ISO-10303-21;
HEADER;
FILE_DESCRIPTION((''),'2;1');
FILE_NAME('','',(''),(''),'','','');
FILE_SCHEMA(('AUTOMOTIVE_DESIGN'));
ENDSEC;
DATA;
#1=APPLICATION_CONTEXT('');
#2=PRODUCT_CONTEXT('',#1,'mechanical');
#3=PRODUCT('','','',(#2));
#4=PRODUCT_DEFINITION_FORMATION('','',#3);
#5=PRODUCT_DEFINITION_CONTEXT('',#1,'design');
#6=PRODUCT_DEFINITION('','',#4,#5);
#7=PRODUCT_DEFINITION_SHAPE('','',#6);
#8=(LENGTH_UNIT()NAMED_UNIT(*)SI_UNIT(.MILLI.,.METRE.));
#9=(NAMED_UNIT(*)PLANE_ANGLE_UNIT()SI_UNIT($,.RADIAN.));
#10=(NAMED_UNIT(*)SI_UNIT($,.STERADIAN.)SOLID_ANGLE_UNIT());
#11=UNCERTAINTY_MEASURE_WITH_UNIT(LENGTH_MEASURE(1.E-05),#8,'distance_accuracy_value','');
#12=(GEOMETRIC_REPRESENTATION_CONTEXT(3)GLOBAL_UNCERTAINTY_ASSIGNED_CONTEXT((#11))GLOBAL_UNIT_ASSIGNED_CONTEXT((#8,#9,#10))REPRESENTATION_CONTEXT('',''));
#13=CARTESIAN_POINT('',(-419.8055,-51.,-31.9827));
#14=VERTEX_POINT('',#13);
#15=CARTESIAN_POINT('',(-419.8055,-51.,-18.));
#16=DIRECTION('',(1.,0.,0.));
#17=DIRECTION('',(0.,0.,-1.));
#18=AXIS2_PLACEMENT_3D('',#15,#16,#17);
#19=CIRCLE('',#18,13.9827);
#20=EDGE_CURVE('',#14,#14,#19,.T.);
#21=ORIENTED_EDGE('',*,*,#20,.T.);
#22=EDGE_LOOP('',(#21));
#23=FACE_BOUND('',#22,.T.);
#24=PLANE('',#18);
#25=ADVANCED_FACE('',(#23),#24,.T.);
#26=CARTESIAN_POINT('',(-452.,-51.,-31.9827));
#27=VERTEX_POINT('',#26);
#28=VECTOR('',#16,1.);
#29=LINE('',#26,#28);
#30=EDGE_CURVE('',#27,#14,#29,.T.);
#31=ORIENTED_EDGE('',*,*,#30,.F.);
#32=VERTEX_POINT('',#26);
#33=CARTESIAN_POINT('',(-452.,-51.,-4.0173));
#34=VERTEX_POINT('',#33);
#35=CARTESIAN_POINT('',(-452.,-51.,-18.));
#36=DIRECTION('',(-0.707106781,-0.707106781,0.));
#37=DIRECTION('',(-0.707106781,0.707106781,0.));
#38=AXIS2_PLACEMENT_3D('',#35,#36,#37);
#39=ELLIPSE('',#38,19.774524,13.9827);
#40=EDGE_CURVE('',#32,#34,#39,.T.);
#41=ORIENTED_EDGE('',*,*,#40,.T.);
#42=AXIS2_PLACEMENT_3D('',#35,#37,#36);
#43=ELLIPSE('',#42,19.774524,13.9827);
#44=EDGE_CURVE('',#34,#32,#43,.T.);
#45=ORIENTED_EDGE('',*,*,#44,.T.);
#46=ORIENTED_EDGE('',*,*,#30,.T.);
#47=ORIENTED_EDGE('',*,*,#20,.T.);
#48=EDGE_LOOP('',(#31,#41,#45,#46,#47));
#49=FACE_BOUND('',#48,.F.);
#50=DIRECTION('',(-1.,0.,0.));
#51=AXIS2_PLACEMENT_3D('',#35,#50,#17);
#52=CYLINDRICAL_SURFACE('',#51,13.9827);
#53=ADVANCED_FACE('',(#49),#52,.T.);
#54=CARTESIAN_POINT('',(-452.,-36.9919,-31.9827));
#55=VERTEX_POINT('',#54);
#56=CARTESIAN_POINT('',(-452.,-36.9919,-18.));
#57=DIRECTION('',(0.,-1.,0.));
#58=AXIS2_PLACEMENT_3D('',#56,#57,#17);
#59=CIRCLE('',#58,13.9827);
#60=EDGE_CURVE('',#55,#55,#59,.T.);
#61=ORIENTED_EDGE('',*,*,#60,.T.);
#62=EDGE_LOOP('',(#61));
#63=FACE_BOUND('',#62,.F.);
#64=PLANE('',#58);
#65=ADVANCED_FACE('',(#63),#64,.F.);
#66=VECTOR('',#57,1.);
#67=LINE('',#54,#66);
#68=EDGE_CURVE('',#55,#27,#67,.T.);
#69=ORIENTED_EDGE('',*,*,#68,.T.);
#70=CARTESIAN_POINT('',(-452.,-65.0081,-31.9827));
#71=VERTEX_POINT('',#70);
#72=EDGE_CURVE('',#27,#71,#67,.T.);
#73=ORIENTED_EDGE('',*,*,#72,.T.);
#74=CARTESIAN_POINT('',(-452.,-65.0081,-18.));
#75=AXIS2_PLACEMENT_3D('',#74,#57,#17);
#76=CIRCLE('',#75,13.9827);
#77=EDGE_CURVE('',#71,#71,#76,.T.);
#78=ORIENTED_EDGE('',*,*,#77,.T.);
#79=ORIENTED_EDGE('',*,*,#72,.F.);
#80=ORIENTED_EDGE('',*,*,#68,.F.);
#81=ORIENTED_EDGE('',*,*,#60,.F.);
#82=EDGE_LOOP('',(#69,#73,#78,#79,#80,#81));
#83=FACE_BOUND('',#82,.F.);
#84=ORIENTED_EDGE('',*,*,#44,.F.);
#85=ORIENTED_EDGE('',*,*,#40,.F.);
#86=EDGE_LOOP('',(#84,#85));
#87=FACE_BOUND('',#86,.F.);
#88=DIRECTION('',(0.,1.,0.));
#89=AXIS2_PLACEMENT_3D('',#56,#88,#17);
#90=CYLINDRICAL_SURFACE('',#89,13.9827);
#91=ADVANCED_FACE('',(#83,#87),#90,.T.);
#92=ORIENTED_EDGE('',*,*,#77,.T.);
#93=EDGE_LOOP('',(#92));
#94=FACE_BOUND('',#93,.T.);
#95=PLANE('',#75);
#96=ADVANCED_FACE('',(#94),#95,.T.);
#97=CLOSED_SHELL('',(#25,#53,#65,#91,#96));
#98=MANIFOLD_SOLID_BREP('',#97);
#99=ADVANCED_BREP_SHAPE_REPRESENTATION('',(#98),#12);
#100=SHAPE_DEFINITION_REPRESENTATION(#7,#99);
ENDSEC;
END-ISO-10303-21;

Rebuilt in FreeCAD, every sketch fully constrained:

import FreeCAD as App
import Part
import Sketcher
from FreeCAD import Vector
Q = App.Units.Quantity

doc = App.newDocument("Part")
body = doc.addObject("PartDesign::Body", "Body")

# Sketch on XZ plane
sketch1 = body.newObject("Sketcher::SketchObject", "Sketch")
sketch1.AttachmentSupport = (doc.getObject("XZ_Plane"), [""])
sketch1.MapMode = "FlatFace"
sketch1.AttachmentOffset = App.Placement(Vector(0, 0, -0.5515 * 25.4), App.Rotation())
sketch1.addGeometry(Part.Circle(Vector(0, 0, 0), Vector(0, 0, 1), 13.9827), False)
sketch1.addConstraint([
    Sketcher.Constraint("Coincident", 0, 3, -1, 1),
    Sketcher.Constraint("Diameter", 0, Q("1.101 in")),
])
pad1 = body.newObject("PartDesign::Pad", "Pad")
pad1.Profile = sketch1
pad1.Length = Q("1.103 in")
body2 = doc.addObject("PartDesign::Body", "Body001")

# Sketch on XY plane
sketch2 = body2.newObject("Sketcher::SketchObject", "Sketch001")
sketch2.AttachmentSupport = (doc.getObject("XY_Plane001"), [""])
sketch2.MapMode = "FlatFace"
sketch2.addGeometry(Part.Circle(Vector(0, 0, 0), Vector(0, 0, 1), 13.9827), False)
sketch2.addConstraint([
    Sketcher.Constraint("Coincident", 0, 3, -1, 1),
    Sketcher.Constraint("Diameter", 0, Q("1.101 in")),
])
pad2 = body2.newObject("PartDesign::Pad", "Pad001")
pad2.Profile = sketch2
pad2.Length = Q("1.2675 in")
doc.recompute()

boolean = body2.newObject("PartDesign::Boolean", "Boolean")
boolean.Type = "Fuse"
boolean.addObjects([body])
body3 = doc.addObject("PartDesign::Body", "Body002")
doc.recompute()

body2.Placement = App.Placement(Vector(-452, -51, -18), App.Rotation(Vector(0, 1, 0), 90))
boolean2 = body3.newObject("PartDesign::Boolean", "Boolean001")
boolean2.Type = "Fuse"
boolean2.addObjects([body2])

doc.recompute()
